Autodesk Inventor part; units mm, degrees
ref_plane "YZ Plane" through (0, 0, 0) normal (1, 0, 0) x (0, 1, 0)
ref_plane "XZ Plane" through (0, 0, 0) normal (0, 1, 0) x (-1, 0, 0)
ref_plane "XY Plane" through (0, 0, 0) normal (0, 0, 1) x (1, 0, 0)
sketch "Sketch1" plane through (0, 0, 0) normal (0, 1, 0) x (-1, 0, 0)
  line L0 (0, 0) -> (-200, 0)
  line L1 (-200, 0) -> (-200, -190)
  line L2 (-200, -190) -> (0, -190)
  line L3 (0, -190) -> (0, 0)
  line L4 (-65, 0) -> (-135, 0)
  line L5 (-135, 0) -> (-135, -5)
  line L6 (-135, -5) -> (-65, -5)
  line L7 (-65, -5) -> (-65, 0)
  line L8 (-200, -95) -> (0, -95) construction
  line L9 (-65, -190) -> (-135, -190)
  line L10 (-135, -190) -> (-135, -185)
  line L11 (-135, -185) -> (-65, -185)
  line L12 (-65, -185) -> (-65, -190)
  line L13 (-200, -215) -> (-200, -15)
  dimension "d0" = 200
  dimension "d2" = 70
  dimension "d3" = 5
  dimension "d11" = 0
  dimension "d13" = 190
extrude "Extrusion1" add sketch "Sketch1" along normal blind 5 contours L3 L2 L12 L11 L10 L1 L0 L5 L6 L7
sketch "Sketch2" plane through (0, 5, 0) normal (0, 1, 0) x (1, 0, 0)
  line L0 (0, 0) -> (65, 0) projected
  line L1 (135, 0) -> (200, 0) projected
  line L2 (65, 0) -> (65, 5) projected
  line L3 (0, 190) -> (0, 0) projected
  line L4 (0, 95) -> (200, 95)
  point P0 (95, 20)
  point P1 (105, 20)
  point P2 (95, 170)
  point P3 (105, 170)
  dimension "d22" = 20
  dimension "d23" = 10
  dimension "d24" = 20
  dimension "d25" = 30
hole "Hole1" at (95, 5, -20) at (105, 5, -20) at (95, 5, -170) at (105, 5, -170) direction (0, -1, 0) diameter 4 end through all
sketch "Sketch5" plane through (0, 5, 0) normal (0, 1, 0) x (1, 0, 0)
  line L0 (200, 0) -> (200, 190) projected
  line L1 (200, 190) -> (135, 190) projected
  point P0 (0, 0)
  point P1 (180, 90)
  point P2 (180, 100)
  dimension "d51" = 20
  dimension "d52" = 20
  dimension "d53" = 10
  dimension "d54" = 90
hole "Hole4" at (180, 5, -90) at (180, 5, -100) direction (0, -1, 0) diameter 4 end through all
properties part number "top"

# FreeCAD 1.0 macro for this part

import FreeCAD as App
import Part
import Sketcher

V = App.Vector

doc = App.newDocument("Part")
body = doc.addObject("PartDesign::Body", "Body")

# Sketch on XZ plane
sketch1 = body.newObject("Sketcher::SketchObject", "Sketch")
sketch1.AttachmentSupport = (doc.getObject("XZ_Plane"), [""])
sketch1.MapMode = "FlatFace"
sketch1.addGeometry([
    Part.LineSegment(V(0, -190, 0), V(0, 0, 0)),  # 0
    Part.LineSegment(V(0, 0, 0), V(65, 0, 0)),  # 1
    Part.LineSegment(V(65, 0, 0), V(65, -5, 0)),  # 2
    Part.LineSegment(V(65, -5, 0), V(135, -5, 0)),  # 3
    Part.LineSegment(V(135, -5, 0), V(135, 0, 0)),  # 4
    Part.LineSegment(V(135, 0, 0), V(200, 0, 0)),  # 5
    Part.LineSegment(V(200, 0, 0), V(200, -190, 0)),  # 6
    Part.LineSegment(V(200, -190, 0), V(135, -190, 0)),  # 7
    Part.LineSegment(V(135, -190, 0), V(135, -185, 0)),  # 8
    Part.LineSegment(V(135, -185, 0), V(65, -185, 0)),  # 9
    Part.LineSegment(V(65, -185, 0), V(65, -190, 0)),  # 10
    Part.LineSegment(V(65, -190, 0), V(0, -190, 0)),  # 11
], False)
sketch1.addConstraint([
    Sketcher.Constraint("Coincident", 0, 2, 1, 1),
    Sketcher.Constraint("Coincident", 1, 2, 2, 1),
    Sketcher.Constraint("Coincident", 2, 2, 3, 1),
    Sketcher.Constraint("Coincident", 3, 2, 4, 1),
    Sketcher.Constraint("Coincident", 4, 2, 5, 1),
    Sketcher.Constraint("Coincident", 5, 2, 6, 1),
    Sketcher.Constraint("Coincident", 6, 2, 7, 1),
    Sketcher.Constraint("Coincident", 7, 2, 8, 1),
    Sketcher.Constraint("Coincident", 8, 2, 9, 1),
    Sketcher.Constraint("Coincident", 9, 2, 10, 1),
    Sketcher.Constraint("Coincident", 10, 2, 11, 1),
    Sketcher.Constraint("Coincident", 11, 2, 0, 1),
    Sketcher.Constraint("Vertical", 0),
    Sketcher.Constraint("Horizontal", 1),
    Sketcher.Constraint("Vertical", 2),
    Sketcher.Constraint("Horizontal", 3),
    Sketcher.Constraint("Vertical", 4),
    Sketcher.Constraint("Horizontal", 5),
    Sketcher.Constraint("Vertical", 6),
    Sketcher.Constraint("Horizontal", 7),
    Sketcher.Constraint("Vertical", 8),
    Sketcher.Constraint("Horizontal", 9),
    Sketcher.Constraint("Vertical", 10),
    Sketcher.Constraint("Horizontal", 11),
    Sketcher.Constraint("Coincident", 0, 2, -1, 1),
    Sketcher.Constraint("PointOnObject", 4, 2, -1),
    Sketcher.Constraint("Horizontal", 7, 2, 10, 2),
    Sketcher.Constraint("Vertical", 4, 2, 7, 2),
    Sketcher.Constraint("Vertical", 2, 2, 9, 2),
    Sketcher.Constraint("Equal", 1, 5),
    Sketcher.Constraint("Equal", 4, 8),
    Sketcher.Constraint("DistanceX", 3, 1, 3, 2, 70.0),
    Sketcher.Constraint("DistanceY", 0, 1, 0, 2, 190.0),
    Sketcher.Constraint("DistanceY", 2, 2, 2, 1, 5.0),
    Sketcher.Constraint("DistanceX", -1, 1, 5, 2, 200.0),
])
pad1 = body.newObject("PartDesign::Pad", "Pad")
pad1.Profile = sketch1
pad1.Length = 5
pad1.Reversed = True

# Sketch on XZ plane
sketch2 = body.newObject("Sketcher::SketchObject", "Sketch001")
sketch2.AttachmentSupport = (doc.getObject("XZ_Plane"), [""])
sketch2.MapMode = "FlatFace"
sketch2.AttachmentOffset = App.Placement(V(0, 0, -5), App.Rotation())
sketch2.addGeometry([
    Part.Circle(V(95, -20, 0), V(0, 0, 1), 2),
    Part.Circle(V(105, -20, 0), V(0, 0, 1), 2),
    Part.Circle(V(95, -170, 0), V(0, 0, 1), 2),
    Part.Circle(V(105, -170, 0), V(0, 0, 1), 2),
], False)
sketch2.addConstraint([
    Sketcher.Constraint("Equal", 0, 1),
    Sketcher.Constraint("Equal", 1, 2),
    Sketcher.Constraint("Equal", 2, 3),
    Sketcher.Constraint("Horizontal", 0, 3, 1, 3),
    Sketcher.Constraint("Horizontal", 2, 3, 3, 3),
    Sketcher.Constraint("Vertical", 0, 3, 2, 3),
    Sketcher.Constraint("Vertical", 1, 3, 3, 3),
    Sketcher.Constraint("Diameter", 0, 4.0),
    Sketcher.Constraint("DistanceX", -1, 1, 0, 3, 95.0),
    Sketcher.Constraint("DistanceY", 0, 3, -1, 1, 20.0),
    Sketcher.Constraint("DistanceX", -1, 1, 1, 3, 105.0),
    Sketcher.Constraint("DistanceY", 2, 3, -1, 1, 170.0),
])
doc.recompute()
hole = body.newObject("PartDesign::Hole", "Hole")
hole.Profile = sketch2
hole.ThreadType = "None"
hole.Diameter = 4
hole.DepthType = "ThroughAll"
hole.Reversed = True

# Sketch on XZ plane
sketch3 = body.newObject("Sketcher::SketchObject", "Sketch002")
sketch3.AttachmentSupport = (doc.getObject("XZ_Plane"), [""])
sketch3.MapMode = "FlatFace"
sketch3.AttachmentOffset = App.Placement(V(0, 0, -5), App.Rotation())
sketch3.addGeometry([
    Part.Circle(V(180, -90, 0), V(0, 0, 1), 2),
    Part.Circle(V(180, -100, 0), V(0, 0, 1), 2),
], False)
sketch3.addConstraint([
    Sketcher.Constraint("Equal", 0, 1),
    Sketcher.Constraint("Vertical", 0, 3, 1, 3),
    Sketcher.Constraint("Diameter", 0, 4.0),
    Sketcher.Constraint("DistanceX", -1, 1, 0, 3, 180.0),
    Sketcher.Constraint("DistanceY", 0, 3, -1, 1, 90.0),
    Sketcher.Constraint("DistanceY", 1, 3, -1, 1, 100.0),
])
doc.recompute()
hole2 = body.newObject("PartDesign::Hole", "Hole001")
hole2.Profile = sketch3
hole2.ThreadType = "None"
hole2.Diameter = 4
hole2.DepthType = "ThroughAll"
hole2.Reversed = True

doc.recompute()
